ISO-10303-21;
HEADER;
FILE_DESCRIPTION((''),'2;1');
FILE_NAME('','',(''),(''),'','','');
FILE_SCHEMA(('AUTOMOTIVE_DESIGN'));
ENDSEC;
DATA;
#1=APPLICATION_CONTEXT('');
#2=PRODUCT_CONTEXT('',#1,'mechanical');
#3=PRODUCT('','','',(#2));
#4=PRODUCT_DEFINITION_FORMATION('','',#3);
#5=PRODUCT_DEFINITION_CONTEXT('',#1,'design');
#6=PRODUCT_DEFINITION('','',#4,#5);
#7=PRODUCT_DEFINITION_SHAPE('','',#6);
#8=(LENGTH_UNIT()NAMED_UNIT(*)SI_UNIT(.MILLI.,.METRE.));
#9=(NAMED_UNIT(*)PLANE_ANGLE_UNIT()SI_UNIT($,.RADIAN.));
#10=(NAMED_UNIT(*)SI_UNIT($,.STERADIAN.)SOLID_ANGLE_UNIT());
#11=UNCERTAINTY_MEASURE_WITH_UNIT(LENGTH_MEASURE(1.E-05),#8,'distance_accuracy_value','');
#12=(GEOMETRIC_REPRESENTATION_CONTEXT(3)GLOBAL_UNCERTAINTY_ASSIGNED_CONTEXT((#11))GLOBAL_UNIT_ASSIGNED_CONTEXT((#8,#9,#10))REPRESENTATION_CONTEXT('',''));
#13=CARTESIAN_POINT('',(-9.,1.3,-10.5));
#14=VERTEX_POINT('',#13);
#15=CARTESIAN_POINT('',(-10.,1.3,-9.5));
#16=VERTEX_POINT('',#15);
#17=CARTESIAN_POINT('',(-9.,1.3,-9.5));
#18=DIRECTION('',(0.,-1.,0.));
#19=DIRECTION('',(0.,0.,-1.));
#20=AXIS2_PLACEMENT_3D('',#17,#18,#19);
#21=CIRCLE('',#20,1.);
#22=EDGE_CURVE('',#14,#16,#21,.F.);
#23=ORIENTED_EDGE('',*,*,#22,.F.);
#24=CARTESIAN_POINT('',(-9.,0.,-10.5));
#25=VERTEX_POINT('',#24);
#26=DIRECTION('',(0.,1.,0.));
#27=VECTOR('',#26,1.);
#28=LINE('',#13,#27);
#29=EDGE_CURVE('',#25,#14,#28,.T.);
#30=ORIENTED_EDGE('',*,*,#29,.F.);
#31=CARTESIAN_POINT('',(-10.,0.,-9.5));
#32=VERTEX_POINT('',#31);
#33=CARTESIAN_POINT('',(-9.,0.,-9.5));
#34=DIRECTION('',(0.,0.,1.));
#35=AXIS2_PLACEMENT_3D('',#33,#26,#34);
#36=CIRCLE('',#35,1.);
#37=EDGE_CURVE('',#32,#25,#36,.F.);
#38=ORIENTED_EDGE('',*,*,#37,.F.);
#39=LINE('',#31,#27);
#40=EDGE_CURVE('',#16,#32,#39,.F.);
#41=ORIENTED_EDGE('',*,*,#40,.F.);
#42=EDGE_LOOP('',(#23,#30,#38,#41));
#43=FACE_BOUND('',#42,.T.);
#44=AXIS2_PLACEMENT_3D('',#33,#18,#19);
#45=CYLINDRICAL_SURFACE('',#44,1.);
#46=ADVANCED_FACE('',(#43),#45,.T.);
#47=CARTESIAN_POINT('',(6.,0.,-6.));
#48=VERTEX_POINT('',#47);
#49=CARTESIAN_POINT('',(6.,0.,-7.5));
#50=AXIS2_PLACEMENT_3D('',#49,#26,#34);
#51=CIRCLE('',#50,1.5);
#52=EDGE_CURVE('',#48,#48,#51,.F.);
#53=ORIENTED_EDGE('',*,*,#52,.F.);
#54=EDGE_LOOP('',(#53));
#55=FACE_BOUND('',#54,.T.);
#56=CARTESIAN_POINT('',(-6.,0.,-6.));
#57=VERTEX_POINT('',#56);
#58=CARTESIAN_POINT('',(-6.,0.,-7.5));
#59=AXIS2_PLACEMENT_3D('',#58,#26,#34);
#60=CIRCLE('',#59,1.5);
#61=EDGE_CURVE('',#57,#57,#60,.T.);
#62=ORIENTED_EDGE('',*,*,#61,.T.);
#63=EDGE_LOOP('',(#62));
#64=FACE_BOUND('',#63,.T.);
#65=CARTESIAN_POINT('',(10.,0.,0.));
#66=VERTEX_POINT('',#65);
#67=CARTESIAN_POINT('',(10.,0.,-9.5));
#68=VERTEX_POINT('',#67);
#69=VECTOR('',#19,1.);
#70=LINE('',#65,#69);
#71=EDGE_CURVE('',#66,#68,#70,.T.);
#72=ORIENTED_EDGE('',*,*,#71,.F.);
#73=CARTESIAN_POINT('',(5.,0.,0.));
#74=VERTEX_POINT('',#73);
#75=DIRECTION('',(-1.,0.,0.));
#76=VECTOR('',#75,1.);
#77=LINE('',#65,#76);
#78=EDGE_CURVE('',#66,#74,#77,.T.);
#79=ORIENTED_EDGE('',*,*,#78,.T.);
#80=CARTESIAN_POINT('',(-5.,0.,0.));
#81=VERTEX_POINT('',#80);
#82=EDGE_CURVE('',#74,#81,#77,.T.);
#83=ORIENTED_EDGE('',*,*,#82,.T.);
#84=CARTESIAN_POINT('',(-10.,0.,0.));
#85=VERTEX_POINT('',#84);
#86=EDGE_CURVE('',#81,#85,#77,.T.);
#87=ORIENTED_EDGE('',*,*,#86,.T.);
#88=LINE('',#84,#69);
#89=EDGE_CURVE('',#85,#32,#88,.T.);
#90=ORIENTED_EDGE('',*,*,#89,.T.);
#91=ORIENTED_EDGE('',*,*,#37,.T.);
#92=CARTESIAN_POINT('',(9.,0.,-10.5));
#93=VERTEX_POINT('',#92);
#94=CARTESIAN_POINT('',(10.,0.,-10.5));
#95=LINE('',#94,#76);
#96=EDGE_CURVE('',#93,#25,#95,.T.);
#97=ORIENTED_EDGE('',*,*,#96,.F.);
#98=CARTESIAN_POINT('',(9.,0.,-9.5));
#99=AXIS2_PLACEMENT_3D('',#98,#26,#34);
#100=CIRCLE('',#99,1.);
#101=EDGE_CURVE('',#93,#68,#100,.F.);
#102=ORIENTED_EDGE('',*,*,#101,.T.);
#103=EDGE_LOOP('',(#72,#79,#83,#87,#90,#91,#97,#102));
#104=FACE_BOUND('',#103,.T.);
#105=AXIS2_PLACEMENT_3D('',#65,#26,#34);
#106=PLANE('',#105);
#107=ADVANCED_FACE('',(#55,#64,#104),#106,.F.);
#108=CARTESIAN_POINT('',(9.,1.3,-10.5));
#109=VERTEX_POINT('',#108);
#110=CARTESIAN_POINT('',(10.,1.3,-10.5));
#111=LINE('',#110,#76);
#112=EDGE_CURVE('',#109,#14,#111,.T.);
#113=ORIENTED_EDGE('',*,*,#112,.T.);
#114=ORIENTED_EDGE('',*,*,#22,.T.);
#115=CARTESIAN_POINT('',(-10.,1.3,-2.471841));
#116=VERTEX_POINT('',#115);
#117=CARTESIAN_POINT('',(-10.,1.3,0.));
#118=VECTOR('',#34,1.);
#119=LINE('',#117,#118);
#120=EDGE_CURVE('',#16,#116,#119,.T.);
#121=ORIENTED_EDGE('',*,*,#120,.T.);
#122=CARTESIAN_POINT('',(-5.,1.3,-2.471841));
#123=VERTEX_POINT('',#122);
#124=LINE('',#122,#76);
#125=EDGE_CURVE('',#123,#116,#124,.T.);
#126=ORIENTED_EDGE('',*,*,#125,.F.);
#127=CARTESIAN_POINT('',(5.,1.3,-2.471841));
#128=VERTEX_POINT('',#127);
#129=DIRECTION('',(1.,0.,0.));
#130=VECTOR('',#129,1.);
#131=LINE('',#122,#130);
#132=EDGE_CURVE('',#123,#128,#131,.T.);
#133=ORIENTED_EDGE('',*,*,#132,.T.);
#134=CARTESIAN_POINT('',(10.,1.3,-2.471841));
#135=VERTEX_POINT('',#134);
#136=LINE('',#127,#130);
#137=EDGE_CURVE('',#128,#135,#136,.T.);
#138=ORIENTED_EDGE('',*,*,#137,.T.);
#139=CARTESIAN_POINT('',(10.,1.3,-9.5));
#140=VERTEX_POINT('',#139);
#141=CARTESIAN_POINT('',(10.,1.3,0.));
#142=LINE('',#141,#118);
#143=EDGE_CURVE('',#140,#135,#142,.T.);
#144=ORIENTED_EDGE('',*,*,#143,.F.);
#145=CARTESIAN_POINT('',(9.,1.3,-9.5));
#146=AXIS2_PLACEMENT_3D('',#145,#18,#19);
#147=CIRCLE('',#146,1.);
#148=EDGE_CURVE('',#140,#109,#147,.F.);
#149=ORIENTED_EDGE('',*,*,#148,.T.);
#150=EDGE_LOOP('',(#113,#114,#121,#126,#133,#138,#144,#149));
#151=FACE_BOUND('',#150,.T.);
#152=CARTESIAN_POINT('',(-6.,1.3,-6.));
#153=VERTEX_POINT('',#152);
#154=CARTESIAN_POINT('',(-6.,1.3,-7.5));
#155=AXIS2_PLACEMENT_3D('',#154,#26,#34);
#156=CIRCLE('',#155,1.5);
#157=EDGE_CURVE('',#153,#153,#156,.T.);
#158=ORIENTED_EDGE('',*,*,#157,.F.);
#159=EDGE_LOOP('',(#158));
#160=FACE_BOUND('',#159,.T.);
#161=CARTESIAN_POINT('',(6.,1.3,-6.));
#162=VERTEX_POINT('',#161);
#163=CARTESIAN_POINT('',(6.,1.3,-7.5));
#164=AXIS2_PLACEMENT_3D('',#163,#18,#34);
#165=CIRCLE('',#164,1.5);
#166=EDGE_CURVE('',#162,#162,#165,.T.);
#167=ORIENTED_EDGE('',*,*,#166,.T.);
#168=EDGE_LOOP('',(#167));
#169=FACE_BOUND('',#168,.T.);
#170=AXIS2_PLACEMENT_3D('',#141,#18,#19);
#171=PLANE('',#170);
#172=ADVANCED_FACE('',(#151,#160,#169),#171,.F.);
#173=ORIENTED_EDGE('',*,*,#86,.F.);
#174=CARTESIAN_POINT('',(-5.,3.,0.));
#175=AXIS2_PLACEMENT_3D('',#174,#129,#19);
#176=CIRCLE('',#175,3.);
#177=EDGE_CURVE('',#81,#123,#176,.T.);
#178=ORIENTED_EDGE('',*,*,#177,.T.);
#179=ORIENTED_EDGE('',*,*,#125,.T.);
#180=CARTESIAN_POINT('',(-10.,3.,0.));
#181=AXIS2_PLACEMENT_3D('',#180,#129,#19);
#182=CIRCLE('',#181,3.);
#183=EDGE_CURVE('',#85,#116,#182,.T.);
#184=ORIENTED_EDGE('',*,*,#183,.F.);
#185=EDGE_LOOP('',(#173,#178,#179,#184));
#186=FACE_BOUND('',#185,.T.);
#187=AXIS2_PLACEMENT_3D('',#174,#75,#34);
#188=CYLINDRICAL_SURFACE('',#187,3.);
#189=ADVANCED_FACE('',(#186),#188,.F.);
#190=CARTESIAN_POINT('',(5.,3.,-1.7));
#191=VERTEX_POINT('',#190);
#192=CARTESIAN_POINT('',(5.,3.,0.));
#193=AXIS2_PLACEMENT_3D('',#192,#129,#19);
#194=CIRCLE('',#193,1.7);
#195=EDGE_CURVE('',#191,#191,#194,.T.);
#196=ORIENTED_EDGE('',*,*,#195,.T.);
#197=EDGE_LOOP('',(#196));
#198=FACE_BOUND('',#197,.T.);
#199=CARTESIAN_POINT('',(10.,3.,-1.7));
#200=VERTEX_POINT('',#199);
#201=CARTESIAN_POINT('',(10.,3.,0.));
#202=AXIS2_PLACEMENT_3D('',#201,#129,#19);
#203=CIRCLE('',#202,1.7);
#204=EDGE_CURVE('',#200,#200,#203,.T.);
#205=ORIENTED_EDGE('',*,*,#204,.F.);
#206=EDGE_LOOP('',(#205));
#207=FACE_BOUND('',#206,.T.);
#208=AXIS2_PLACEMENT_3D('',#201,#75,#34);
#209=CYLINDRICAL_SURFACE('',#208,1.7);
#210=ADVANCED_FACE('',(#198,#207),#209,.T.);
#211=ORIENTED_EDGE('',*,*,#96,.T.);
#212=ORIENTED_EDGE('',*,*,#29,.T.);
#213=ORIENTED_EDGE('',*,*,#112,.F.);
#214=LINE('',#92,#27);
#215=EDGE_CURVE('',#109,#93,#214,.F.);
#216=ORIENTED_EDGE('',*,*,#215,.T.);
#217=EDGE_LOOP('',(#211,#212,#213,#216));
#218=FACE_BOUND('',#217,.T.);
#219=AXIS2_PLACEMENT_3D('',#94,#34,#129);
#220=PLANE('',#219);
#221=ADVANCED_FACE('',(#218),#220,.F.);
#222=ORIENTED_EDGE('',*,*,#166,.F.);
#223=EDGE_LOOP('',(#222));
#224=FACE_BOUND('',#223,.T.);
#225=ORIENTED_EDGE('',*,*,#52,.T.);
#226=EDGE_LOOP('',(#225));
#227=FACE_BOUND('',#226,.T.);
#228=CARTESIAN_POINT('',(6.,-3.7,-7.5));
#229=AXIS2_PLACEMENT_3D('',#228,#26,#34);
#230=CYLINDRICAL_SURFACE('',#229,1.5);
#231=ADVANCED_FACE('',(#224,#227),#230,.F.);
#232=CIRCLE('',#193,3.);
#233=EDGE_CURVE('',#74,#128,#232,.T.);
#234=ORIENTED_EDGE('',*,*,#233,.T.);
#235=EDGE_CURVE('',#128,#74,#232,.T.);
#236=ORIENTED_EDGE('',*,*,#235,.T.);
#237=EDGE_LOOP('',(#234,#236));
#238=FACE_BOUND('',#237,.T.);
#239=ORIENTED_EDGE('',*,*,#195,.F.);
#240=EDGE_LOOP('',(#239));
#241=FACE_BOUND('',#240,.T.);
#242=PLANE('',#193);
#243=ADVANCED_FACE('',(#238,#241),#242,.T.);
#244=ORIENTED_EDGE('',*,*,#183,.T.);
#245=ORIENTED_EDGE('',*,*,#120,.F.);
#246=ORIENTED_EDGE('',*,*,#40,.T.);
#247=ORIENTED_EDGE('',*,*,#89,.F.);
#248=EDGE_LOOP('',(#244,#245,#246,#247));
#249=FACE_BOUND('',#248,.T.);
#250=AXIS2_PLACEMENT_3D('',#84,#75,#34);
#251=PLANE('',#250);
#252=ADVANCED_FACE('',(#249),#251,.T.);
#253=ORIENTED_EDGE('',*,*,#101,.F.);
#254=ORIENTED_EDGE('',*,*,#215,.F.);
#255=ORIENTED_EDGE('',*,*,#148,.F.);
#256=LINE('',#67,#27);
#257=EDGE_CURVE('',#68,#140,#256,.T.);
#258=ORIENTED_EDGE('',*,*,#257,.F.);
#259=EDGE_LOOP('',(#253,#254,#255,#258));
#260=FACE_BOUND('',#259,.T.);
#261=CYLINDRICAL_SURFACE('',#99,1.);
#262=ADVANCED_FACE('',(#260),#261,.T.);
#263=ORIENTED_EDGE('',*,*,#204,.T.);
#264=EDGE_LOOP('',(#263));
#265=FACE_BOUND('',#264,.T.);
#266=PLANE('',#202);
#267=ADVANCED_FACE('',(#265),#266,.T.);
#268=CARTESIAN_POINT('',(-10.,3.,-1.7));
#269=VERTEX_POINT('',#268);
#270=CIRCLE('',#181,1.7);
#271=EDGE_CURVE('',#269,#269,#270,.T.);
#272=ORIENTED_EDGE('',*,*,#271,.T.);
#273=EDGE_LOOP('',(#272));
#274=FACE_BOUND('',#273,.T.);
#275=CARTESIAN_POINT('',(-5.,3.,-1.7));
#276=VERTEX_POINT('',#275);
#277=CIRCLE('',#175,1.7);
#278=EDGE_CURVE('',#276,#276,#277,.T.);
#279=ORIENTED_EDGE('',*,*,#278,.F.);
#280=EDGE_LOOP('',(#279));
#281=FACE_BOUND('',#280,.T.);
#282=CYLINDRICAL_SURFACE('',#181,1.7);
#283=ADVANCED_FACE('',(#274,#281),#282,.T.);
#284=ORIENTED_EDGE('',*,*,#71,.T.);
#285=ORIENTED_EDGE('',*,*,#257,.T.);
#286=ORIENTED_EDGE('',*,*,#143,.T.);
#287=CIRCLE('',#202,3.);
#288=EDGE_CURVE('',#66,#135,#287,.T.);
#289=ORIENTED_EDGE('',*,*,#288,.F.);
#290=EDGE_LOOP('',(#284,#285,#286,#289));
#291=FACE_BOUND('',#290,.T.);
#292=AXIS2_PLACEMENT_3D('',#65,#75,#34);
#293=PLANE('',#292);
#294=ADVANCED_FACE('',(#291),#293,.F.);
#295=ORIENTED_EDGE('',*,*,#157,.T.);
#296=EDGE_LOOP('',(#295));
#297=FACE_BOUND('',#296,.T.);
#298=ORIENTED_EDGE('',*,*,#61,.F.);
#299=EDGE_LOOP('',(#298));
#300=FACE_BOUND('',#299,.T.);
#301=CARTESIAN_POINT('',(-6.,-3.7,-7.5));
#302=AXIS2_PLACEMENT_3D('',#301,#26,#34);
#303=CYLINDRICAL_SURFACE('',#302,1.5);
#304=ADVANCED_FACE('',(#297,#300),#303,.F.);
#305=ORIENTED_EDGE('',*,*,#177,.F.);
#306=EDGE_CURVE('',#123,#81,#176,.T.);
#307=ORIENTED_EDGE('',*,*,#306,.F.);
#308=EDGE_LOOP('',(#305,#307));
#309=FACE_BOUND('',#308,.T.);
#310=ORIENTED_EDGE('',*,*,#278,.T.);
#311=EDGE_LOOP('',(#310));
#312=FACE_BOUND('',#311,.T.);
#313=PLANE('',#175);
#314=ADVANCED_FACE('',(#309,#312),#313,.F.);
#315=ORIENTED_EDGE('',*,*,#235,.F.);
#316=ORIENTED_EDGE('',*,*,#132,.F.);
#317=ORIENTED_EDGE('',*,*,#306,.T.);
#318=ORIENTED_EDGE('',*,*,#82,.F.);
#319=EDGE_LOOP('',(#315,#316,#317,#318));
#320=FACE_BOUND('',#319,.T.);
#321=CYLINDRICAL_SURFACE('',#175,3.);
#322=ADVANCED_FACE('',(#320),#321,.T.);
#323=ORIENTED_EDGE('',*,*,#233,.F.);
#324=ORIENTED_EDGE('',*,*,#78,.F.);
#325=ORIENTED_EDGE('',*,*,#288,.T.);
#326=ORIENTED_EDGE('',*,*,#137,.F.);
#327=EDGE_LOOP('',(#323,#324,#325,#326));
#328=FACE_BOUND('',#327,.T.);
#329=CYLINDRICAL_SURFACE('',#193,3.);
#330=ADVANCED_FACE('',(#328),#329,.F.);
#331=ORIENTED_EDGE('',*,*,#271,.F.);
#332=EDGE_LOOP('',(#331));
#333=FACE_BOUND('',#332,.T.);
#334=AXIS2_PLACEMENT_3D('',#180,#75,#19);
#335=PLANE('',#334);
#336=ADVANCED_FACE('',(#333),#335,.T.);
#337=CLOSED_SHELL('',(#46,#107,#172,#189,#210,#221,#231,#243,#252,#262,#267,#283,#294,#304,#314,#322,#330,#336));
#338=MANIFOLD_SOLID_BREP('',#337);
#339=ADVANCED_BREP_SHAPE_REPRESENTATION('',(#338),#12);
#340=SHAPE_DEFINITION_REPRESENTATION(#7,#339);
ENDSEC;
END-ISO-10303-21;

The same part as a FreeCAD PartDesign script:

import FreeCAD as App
import Part
import Sketcher

V = App.Vector


def edges_at(feature, points):
    """Names of the edges that pass closest to the given points."""
    edges = feature.Shape.Edges
    near = lambda p: min(range(len(edges)), key=lambda i: edges[i].distToShape(Part.Vertex(*p))[0])
    return sorted({f"Edge{near(p) + 1}" for p in points})

doc = App.newDocument("Part")
body = doc.addObject("PartDesign::Body", "Body")

sketch1 = doc.addObject("Sketcher::SketchObject", "Sketch")
body.addObject(sketch1)
sketch1.AttachmentSupport = (doc.YZ_Plane, [""])
sketch1.MapMode = "FlatFace"
sketch1.addGeometry([
    Part.LineSegment(V(1.3, 0, 0), V(0, 0, 0)),
    Part.LineSegment(V(0, 0, 0), V(0, -10.5, 0)),
    Part.LineSegment(V(0, -10.5, 0), V(1.3, -10.5, 0)),
    Part.LineSegment(V(1.3, -10.5, 0), V(1.3, 0, 0)),
], False)
sketch1.addConstraint([
    Sketcher.Constraint("Coincident", 0, 2, 1, 1),
    Sketcher.Constraint("Coincident", 1, 2, 2, 1),
    Sketcher.Constraint("Coincident", 2, 2, 3, 1),
    Sketcher.Constraint("Coincident", 3, 2, 0, 1),
    Sketcher.Constraint("Horizontal", 0),
    Sketcher.Constraint("Vertical", 1),
    Sketcher.Constraint("Horizontal", 2),
    Sketcher.Constraint("Vertical", 3),
    Sketcher.Constraint("Coincident", 0, 2, -1, 1),
    Sketcher.Constraint("DistanceX", 0, 2, 0, 1, 1.3),
    Sketcher.Constraint("DistanceY", 1, 2, 1, 1, 10.5),
])
pad1 = doc.addObject("PartDesign::Pad", "Pad")
body.addObject(pad1)
pad1.Profile = sketch1
pad1.Length = 20
pad1.Midplane = True

sketch2 = doc.addObject("Sketcher::SketchObject", "Sketch001")
body.addObject(sketch2)
sketch2.AttachmentSupport = (doc.YZ_Plane, [""])
sketch2.MapMode = "FlatFace"
sketch2.AttachmentOffset = App.Placement(V(0, 0, 10), App.Rotation())
sketch2.addGeometry(Part.Circle(V(3, 0, 0), V(0, 0, 1), 3), False)
sketch2.addConstraint([
    Sketcher.Constraint("PointOnObject", 0, 3, -1),
    Sketcher.Constraint("Diameter", 0, 6.0),
    Sketcher.Constraint("DistanceX", -1, 1, 0, 3, 3.0),
])
pocket1 = doc.addObject("PartDesign::Pocket", "Pocket")
body.addObject(pocket1)
pocket1.Profile = sketch2
pocket1.Length = 5

sketch3 = doc.addObject("Sketcher::SketchObject", "Sketch002")
body.addObject(sketch3)
sketch3.AttachmentSupport = (doc.YZ_Plane, [""])
sketch3.MapMode = "FlatFace"
sketch3.AttachmentOffset = App.Placement(V(0, 0, 5), App.Rotation())
sketch3.addGeometry(Part.Circle(V(3, 0, 0), V(0, 0, 1), 3), False)
sketch3.addConstraint([
    Sketcher.Constraint("PointOnObject", 0, 3, -1),
    Sketcher.Constraint("Diameter", 0, 6.0),
    Sketcher.Constraint("DistanceX", -1, 1, 0, 3, 3.0),
])
pad2 = doc.addObject("PartDesign::Pad", "Pad001")
body.addObject(pad2)
pad2.Profile = sketch3
pad2.Length = 10
pad2.Reversed = True

sketch4 = doc.addObject("Sketcher::SketchObject", "Sketch003")
body.addObject(sketch4)
sketch4.AttachmentSupport = (doc.YZ_Plane, [""])
sketch4.MapMode = "FlatFace"
sketch4.AttachmentOffset = App.Placement(V(0, 0, 5), App.Rotation())
sketch4.addGeometry(Part.Circle(V(3, 0, 0), V(0, 0, 1), 1.7), False)
sketch4.addConstraint([
    Sketcher.Constraint("PointOnObject", 0, 3, -1),
    Sketcher.Constraint("Diameter", 0, 3.4),
    Sketcher.Constraint("DistanceX", -1, 1, 0, 3, 3.0),
])
pad3 = doc.addObject("PartDesign::Pad", "Pad002")
body.addObject(pad3)
pad3.Profile = sketch4
pad3.Length = 5
doc.recompute()

mirrored = doc.addObject("PartDesign::Mirrored", "Mirrored")
body.addObject(mirrored)
mirrored.Originals = [pocket1, pad3]
mirrored.MirrorPlane = (doc.YZ_Plane, [""])
body.Tip = mirrored

sketch5 = doc.addObject("Sketcher::SketchObject", "Sketch004")
body.addObject(sketch5)
sketch5.AttachmentSupport = (doc.XZ_Plane, [""])
sketch5.MapMode = "FlatFace"
sketch5.AttachmentOffset = App.Placement(V(0, 0, -1.3), App.Rotation())
sketch5.addGeometry(Part.Circle(V(-6, -7.5, 0), V(0, 0, 1), 1.5), False)
sketch5.addConstraint([
    Sketcher.Constraint("Diameter", 0, 3.0),
    Sketcher.Constraint("DistanceX", 0, 3, -1, 1, 6.0),
    Sketcher.Constraint("DistanceY", 0, 3, -1, 1, 7.5),
])
pocket2 = doc.addObject("PartDesign::Pocket", "Pocket001")
body.addObject(pocket2)
pocket2.Profile = sketch5
pocket2.Length = 5
pocket2.Reversed = True
doc.recompute()

mirrored2 = doc.addObject("PartDesign::Mirrored", "Mirrored001")
body.addObject(mirrored2)
mirrored2.Originals = [pocket2]
mirrored2.MirrorPlane = (doc.YZ_Plane, [""])
body.Tip = mirrored2
doc.recompute()

fillet = doc.addObject("PartDesign::Fillet", "Fillet")
body.addObject(fillet)
fillet.Base = (mirrored2, edges_at(mirrored2, [(10, 0.65, -10.5), (-10, 0.65, -10.5)]))
fillet.Radius = 1

doc.recompute()
